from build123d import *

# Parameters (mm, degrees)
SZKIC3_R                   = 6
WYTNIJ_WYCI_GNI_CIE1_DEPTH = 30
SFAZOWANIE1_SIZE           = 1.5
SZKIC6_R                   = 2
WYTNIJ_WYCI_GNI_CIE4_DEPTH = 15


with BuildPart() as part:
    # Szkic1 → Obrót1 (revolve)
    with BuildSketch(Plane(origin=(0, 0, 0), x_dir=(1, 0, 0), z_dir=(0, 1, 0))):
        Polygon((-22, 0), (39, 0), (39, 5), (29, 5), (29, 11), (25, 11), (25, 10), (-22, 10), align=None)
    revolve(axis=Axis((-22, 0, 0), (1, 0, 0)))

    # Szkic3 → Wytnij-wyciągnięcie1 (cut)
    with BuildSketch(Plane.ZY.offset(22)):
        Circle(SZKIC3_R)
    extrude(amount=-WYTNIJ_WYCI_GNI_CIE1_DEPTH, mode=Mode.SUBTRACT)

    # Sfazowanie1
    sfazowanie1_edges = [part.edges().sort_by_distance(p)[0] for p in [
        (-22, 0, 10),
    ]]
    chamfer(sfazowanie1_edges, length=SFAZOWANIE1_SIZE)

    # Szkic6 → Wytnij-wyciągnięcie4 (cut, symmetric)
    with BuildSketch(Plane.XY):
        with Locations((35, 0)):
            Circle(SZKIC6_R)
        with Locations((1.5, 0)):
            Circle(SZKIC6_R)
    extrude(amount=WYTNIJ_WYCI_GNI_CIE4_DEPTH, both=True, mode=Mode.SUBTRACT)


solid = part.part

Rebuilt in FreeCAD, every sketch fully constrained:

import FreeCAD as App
import Part
import Sketcher

V = App.Vector
Q = App.Units.Quantity


def edges_at(feature, points):
    """Names of the edges that pass closest to the given points."""
    edges = feature.Shape.Edges
    near = lambda p: min(range(len(edges)), key=lambda i: edges[i].distToShape(Part.Vertex(*p))[0])
    return sorted({f"Edge{near(p) + 1}" for p in points})

doc = App.newDocument("Part")
body = doc.addObject("PartDesign::Body", "Body")

# Sketch on XZ plane
sketch1 = body.newObject("Sketcher::SketchObject", "Sketch")
sketch1.AttachmentSupport = (doc.getObject("XZ_Plane"), [""])
sketch1.MapMode = "FlatFace"
sketch1.addGeometry(Part.LineSegment(V(-22, 0, 0), V(39, 0, 0)), False)
sketch1.addGeometry(Part.LineSegment(V(39, 0, 0), V(39, -5, 0)), False)
sketch1.addGeometry(Part.LineSegment(V(39, -5, 0), V(29, -5, 0)), False)
sketch1.addGeometry(Part.LineSegment(V(29, -5, 0), V(29, -11, 0)), False)
sketch1.addGeometry(Part.LineSegment(V(29, -11, 0), V(25, -11, 0)), False)
sketch1.addGeometry(Part.LineSegment(V(25, -11, 0), V(25, -10, 0)), False)
sketch1.addGeometry(Part.LineSegment(V(25, -10, 0), V(-22, -10, 0)), False)
sketch1.addGeometry(Part.LineSegment(V(-22, -10, 0), V(-22, 0, 0)), False)
sketch1.addConstraint(Sketcher.Constraint("Coincident", 0, 2, 1, 1))
sketch1.addConstraint(Sketcher.Constraint("Coincident", 1, 2, 2, 1))
sketch1.addConstraint(Sketcher.Constraint("Coincident", 2, 2, 3, 1))
sketch1.addConstraint(Sketcher.Constraint("Coincident", 3, 2, 4, 1))
sketch1.addConstraint(Sketcher.Constraint("Coincident", 4, 2, 5, 1))
sketch1.addConstraint(Sketcher.Constraint("Coincident", 5, 2, 6, 1))
sketch1.addConstraint(Sketcher.Constraint("Coincident", 6, 2, 7, 1))
sketch1.addConstraint(Sketcher.Constraint("Coincident", 7, 2, 0, 1))
sketch1.addConstraint(Sketcher.Constraint("Horizontal", 0))
sketch1.addConstraint(Sketcher.Constraint("Vertical", 1))
sketch1.addConstraint(Sketcher.Constraint("Horizontal", 2))
sketch1.addConstraint(Sketcher.Constraint("Vertical", 3))
sketch1.addConstraint(Sketcher.Constraint("Horizontal", 4))
sketch1.addConstraint(Sketcher.Constraint("Vertical", 5))
sketch1.addConstraint(Sketcher.Constraint("Horizontal", 6))
sketch1.addConstraint(Sketcher.Constraint("Vertical", 7))
sketch1.addConstraint(Sketcher.Constraint("PointOnObject", 0, 2, -1))
sketch1.addConstraint(Sketcher.Constraint("Equal", 2, 7))
sketch1.addConstraint(Sketcher.Constraint("DistanceX", 0, 1, 0, 2, Q("61 mm")))
sketch1.addConstraint(Sketcher.Constraint("DistanceX", 2, 2, 2, 1, Q("10 mm")))
sketch1.addConstraint(Sketcher.Constraint("DistanceX", 4, 2, 4, 1, Q("4 mm")))
sketch1.addConstraint(Sketcher.Constraint("DistanceY", 1, 2, 1, 1, Q("5 mm")))
sketch1.addConstraint(Sketcher.Constraint("DistanceY", 3, 2, 3, 1, Q("6 mm")))
sketch1.addConstraint(Sketcher.Constraint("DistanceX", -1, 1, 0, 2, Q("39 mm")))
revolution = body.newObject("PartDesign::Revolution", "Revolution")
revolution.Profile = sketch1
revolution.ReferenceAxis = (sketch1, ["H_Axis"])
revolution.Angle = 360

# Sketch on YZ plane
sketch2 = body.newObject("Sketcher::SketchObject", "Sketch001")
sketch2.AttachmentSupport = (doc.getObject("YZ_Plane"), [""])
sketch2.MapMode = "FlatFace"
sketch2.AttachmentOffset = App.Placement(V(0, 0, -22), App.Rotation())
sketch2.addGeometry(Part.Circle(V(0, 0, 0), V(0, 0, 1), 6), False)
sketch2.addConstraint(Sketcher.Constraint("Coincident", 0, 3, -1, 1))
sketch2.addConstraint(Sketcher.Constraint("Diameter", 0, Q("12 mm")))
pocket1 = body.newObject("PartDesign::Pocket", "Pocket")
pocket1.Profile = sketch2
pocket1.Length = 30
pocket1.Reversed = True
doc.recompute()

chamfer = body.newObject("PartDesign::Chamfer", "Chamfer")
chamfer.Base = (pocket1, edges_at(pocket1, [(-22, 0, 10)]))
chamfer.Size = 1.5

# Sketch on XY plane
sketch3 = body.newObject("Sketcher::SketchObject", "Sketch002")
sketch3.AttachmentSupport = (doc.getObject("XY_Plane"), [""])
sketch3.MapMode = "FlatFace"
sketch3.addGeometry(Part.Circle(V(35, 0, 0), V(0, 0, 1), 2), False)
sketch3.addGeometry(Part.Circle(V(1.5, 0, 0), V(0, 0, 1), 2), False)
sketch3.addConstraint(Sketcher.Constraint("Equal", 0, 1))
sketch3.addConstraint(Sketcher.Constraint("PointOnObject", 0, 3, -1))
sketch3.addConstraint(Sketcher.Constraint("PointOnObject", 1, 3, -1))
sketch3.addConstraint(Sketcher.Constraint("Diameter", 0, Q("4 mm")))
sketch3.addConstraint(Sketcher.Constraint("DistanceX", -1, 1, 0, 3, Q("35 mm")))
sketch3.addConstraint(Sketcher.Constraint("DistanceX", -1, 1, 1, 3, Q("1.5 mm")))
pocket2 = body.newObject("PartDesign::Pocket", "Pocket001")
pocket2.Profile = sketch3
pocket2.Length = 30
pocket2.Midplane = True

doc.recompute()
